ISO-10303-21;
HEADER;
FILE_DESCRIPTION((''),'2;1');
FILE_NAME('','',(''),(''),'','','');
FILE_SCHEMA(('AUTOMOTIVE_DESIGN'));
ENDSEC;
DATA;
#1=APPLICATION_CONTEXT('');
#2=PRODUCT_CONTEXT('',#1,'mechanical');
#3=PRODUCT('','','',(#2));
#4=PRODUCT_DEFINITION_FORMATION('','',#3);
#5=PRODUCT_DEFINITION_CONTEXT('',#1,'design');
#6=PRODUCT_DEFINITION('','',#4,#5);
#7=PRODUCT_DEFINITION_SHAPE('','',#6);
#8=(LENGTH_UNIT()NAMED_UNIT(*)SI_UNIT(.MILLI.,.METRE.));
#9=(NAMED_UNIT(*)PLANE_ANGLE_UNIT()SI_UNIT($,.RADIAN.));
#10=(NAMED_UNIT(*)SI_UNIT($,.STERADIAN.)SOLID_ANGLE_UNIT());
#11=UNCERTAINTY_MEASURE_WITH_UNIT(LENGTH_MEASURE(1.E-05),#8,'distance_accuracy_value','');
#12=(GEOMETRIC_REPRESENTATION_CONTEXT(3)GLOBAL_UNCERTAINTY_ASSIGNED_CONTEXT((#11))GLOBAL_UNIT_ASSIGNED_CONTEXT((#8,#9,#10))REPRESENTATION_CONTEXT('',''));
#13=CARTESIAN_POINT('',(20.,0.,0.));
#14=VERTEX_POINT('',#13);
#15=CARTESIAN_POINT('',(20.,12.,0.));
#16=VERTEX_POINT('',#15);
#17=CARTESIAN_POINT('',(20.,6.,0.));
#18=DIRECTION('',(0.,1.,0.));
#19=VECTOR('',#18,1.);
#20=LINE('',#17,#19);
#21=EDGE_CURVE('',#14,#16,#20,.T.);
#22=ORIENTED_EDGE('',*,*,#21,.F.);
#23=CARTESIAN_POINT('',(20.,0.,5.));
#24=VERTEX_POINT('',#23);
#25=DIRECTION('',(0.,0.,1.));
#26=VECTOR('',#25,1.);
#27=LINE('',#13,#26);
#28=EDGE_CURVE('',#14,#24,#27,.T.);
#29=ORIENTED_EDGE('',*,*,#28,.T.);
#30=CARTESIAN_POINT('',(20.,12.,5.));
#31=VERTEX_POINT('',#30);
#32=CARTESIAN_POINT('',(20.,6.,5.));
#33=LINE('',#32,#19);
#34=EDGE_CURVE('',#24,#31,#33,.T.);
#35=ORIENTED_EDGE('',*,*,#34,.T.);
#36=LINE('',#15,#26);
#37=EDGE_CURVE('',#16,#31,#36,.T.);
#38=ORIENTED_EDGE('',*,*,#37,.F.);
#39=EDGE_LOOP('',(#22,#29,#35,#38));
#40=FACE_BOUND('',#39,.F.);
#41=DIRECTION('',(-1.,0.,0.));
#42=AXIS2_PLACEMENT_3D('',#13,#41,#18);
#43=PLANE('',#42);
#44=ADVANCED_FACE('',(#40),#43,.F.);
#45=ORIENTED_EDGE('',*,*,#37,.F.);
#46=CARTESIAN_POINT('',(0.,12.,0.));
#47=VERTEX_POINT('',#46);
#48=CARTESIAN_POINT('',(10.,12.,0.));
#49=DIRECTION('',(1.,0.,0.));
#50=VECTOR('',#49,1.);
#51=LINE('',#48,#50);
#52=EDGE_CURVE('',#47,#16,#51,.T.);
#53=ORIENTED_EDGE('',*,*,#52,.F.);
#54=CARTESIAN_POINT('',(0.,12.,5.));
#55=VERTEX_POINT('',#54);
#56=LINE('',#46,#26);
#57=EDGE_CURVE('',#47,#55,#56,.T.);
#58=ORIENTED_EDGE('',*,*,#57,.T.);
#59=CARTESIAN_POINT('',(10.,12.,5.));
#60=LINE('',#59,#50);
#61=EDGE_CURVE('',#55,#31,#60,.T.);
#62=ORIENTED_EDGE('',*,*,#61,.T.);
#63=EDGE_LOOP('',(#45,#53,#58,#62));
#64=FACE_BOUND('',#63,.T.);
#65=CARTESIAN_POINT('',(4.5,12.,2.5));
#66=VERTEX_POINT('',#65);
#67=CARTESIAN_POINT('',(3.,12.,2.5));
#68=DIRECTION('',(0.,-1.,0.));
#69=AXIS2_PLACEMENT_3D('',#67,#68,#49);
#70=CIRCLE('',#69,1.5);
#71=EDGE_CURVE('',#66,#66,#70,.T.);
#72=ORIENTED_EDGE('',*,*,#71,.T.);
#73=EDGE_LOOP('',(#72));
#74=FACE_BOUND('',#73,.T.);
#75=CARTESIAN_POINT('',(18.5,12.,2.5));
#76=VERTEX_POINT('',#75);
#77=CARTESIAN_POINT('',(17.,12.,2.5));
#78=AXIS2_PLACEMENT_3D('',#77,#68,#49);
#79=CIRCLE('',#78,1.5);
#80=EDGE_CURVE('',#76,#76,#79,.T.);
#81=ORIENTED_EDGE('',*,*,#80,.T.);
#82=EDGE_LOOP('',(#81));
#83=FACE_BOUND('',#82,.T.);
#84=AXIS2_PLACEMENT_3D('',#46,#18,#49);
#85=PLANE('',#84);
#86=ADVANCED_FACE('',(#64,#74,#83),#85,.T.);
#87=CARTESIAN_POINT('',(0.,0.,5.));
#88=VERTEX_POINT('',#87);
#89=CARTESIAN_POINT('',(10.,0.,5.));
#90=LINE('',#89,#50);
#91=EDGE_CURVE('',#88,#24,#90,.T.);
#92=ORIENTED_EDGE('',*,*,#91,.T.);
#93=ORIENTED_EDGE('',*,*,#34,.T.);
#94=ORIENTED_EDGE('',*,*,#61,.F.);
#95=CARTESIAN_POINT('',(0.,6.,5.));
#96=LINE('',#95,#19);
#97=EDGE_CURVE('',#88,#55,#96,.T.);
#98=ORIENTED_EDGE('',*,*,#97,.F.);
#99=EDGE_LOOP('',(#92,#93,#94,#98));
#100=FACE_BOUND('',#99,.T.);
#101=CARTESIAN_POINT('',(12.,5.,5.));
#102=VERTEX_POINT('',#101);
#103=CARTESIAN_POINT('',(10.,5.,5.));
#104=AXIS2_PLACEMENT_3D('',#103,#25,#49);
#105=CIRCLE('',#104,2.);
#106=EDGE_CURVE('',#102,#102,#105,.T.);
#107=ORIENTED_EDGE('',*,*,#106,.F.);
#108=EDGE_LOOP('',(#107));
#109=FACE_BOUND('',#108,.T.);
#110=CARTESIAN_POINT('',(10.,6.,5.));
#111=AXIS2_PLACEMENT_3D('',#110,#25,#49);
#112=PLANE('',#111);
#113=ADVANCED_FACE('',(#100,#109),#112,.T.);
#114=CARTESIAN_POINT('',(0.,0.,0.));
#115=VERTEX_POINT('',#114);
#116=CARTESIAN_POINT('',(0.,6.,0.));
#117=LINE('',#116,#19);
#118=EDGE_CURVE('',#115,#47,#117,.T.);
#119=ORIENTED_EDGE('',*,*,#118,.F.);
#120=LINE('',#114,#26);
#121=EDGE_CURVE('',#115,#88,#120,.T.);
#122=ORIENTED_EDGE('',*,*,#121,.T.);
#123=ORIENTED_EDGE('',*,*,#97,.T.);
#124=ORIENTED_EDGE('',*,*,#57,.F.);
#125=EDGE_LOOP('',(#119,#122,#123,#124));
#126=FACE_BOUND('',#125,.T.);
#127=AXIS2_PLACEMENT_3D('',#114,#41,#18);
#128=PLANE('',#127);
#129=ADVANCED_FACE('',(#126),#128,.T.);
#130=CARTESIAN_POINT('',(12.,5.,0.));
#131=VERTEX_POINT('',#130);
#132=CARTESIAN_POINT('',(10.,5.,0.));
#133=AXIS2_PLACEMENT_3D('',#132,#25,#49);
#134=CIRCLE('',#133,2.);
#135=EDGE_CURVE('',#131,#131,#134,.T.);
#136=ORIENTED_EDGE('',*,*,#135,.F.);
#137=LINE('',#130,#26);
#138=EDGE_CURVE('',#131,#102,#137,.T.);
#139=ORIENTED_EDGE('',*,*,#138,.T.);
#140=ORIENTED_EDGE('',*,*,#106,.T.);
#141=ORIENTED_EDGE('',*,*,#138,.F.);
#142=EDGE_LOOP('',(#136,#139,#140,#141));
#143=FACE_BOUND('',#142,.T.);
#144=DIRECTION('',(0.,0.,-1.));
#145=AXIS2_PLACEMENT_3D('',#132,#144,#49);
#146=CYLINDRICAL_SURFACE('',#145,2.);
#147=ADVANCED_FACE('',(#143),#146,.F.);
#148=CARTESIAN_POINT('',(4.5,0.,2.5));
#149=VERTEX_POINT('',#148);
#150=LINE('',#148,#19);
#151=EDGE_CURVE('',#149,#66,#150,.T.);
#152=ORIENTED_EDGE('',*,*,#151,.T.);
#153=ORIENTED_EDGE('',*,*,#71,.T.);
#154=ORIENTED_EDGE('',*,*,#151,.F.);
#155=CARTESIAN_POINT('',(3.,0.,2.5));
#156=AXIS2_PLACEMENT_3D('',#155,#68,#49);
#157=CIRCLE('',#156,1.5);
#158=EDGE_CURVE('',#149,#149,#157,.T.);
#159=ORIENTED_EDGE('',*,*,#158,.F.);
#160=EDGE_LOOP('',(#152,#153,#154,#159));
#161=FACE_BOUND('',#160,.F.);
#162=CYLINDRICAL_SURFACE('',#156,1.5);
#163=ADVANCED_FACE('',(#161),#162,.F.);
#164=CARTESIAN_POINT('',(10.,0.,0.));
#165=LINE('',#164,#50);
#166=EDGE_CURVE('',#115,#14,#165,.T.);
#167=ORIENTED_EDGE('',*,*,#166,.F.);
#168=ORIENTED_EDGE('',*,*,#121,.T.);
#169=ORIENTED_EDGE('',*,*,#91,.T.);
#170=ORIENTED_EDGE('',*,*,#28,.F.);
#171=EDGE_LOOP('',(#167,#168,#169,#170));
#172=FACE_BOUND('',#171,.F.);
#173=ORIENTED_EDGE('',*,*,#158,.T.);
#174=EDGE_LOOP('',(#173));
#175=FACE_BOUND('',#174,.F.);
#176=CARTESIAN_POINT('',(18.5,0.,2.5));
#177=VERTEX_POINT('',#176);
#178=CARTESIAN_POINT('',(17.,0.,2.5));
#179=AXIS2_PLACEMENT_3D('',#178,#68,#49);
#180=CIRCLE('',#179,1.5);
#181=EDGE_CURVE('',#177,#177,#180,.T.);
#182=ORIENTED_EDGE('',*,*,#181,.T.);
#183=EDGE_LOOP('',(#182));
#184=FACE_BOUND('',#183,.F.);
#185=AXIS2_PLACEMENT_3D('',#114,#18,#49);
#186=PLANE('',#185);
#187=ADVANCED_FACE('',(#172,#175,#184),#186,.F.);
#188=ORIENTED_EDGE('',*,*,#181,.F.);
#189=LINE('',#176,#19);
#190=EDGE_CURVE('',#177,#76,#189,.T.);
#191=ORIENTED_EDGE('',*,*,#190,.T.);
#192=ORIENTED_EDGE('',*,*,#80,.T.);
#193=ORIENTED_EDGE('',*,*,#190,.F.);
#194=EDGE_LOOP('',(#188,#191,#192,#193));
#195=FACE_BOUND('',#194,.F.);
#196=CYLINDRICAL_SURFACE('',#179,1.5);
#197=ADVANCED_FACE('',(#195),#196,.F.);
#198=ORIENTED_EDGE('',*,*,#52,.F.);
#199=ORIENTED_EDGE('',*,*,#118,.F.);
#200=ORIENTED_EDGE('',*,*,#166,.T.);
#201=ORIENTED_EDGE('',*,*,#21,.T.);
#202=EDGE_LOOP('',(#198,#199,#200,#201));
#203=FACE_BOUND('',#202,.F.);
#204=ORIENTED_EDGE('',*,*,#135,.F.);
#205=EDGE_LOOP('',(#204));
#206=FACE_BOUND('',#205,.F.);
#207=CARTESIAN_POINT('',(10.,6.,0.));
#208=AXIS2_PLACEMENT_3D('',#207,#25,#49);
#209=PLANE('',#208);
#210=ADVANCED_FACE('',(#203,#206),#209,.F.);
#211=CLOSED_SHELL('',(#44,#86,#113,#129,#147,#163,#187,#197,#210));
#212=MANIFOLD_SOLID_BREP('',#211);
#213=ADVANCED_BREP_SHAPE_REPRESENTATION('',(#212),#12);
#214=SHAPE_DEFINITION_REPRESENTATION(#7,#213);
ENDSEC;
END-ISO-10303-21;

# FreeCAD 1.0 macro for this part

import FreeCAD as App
import Part
import Sketcher
from FreeCAD import Vector
Q = App.Units.Quantity

doc = App.newDocument("Part")
body = doc.addObject("PartDesign::Body", "Body")

# Sketch on XY plane
sketch1 = body.newObject("Sketcher::SketchObject", "Sketch")
sketch1.AttachmentSupport = (doc.getObject("XY_Plane"), [""])
sketch1.MapMode = "FlatFace"
sketch1.addGeometry(Part.LineSegment(Vector(0, 12, 0), Vector(0, 0, 0)), False)
sketch1.addGeometry(Part.LineSegment(Vector(0, 0, 0), Vector(20, 0, 0)), False)
sketch1.addGeometry(Part.LineSegment(Vector(20, 0, 0), Vector(20, 12, 0)), False)
sketch1.addGeometry(Part.LineSegment(Vector(20, 12, 0), Vector(0, 12, 0)), False)
sketch1.addGeometry(Part.Circle(Vector(10, 5, 0), Vector(0, 0, 1), 2), False)
sketch1.addConstraint(Sketcher.Constraint("Coincident", 0, 2, 1, 1))
sketch1.addConstraint(Sketcher.Constraint("Coincident", 1, 2, 2, 1))
sketch1.addConstraint(Sketcher.Constraint("Coincident", 2, 2, 3, 1))
sketch1.addConstraint(Sketcher.Constraint("Coincident", 3, 2, 0, 1))
sketch1.addConstraint(Sketcher.Constraint("Vertical", 0))
sketch1.addConstraint(Sketcher.Constraint("Horizontal", 1))
sketch1.addConstraint(Sketcher.Constraint("Vertical", 2))
sketch1.addConstraint(Sketcher.Constraint("Horizontal", 3))
sketch1.addConstraint(Sketcher.Constraint("Coincident", 0, 2, -1, 1))
sketch1.addConstraint(Sketcher.Constraint("Diameter", 4, Q("4 mm")))
sketch1.addConstraint(Sketcher.Constraint("DistanceX", 1, 1, 1, 2, Q("20 mm")))
sketch1.addConstraint(Sketcher.Constraint("DistanceY", 0, 2, 0, 1, Q("12 mm")))
sketch1.addConstraint(Sketcher.Constraint("DistanceX", -1, 1, 4, 3, Q("10 mm")))
sketch1.addConstraint(Sketcher.Constraint("DistanceY", -1, 1, 4, 3, Q("5 mm")))
pad1 = body.newObject("PartDesign::Pad", "Pad")
pad1.Profile = sketch1
pad1.Length = 5

# Sketch on XZ plane
sketch2 = body.newObject("Sketcher::SketchObject", "Sketch001")
sketch2.AttachmentSupport = (doc.getObject("XZ_Plane"), [""])
sketch2.MapMode = "FlatFace"
sketch2.addGeometry(Part.Circle(Vector(3, 2.5, 0), Vector(0, 0, 1), 1.5), False)
sketch2.addGeometry(Part.Circle(Vector(17, 2.5, 0), Vector(0, 0, 1), 1.5), False)
sketch2.addConstraint(Sketcher.Constraint("Equal", 0, 1))
sketch2.addConstraint(Sketcher.Constraint("Horizontal", 0, 3, 1, 3))
sketch2.addConstraint(Sketcher.Constraint("Diameter", 0, Q("3 mm")))
sketch2.addConstraint(Sketcher.Constraint("DistanceX", -1, 1, 0, 3, Q("3 mm")))
sketch2.addConstraint(Sketcher.Constraint("DistanceX", -1, 1, 1, 3, Q("17 mm")))
sketch2.addConstraint(Sketcher.Constraint("DistanceY", -1, 1, 0, 3, Q("2.5 mm")))
pocket1 = body.newObject("PartDesign::Pocket", "Pocket")
pocket1.Profile = sketch2
pocket1.Type = "ThroughAll"

doc.recompute()
